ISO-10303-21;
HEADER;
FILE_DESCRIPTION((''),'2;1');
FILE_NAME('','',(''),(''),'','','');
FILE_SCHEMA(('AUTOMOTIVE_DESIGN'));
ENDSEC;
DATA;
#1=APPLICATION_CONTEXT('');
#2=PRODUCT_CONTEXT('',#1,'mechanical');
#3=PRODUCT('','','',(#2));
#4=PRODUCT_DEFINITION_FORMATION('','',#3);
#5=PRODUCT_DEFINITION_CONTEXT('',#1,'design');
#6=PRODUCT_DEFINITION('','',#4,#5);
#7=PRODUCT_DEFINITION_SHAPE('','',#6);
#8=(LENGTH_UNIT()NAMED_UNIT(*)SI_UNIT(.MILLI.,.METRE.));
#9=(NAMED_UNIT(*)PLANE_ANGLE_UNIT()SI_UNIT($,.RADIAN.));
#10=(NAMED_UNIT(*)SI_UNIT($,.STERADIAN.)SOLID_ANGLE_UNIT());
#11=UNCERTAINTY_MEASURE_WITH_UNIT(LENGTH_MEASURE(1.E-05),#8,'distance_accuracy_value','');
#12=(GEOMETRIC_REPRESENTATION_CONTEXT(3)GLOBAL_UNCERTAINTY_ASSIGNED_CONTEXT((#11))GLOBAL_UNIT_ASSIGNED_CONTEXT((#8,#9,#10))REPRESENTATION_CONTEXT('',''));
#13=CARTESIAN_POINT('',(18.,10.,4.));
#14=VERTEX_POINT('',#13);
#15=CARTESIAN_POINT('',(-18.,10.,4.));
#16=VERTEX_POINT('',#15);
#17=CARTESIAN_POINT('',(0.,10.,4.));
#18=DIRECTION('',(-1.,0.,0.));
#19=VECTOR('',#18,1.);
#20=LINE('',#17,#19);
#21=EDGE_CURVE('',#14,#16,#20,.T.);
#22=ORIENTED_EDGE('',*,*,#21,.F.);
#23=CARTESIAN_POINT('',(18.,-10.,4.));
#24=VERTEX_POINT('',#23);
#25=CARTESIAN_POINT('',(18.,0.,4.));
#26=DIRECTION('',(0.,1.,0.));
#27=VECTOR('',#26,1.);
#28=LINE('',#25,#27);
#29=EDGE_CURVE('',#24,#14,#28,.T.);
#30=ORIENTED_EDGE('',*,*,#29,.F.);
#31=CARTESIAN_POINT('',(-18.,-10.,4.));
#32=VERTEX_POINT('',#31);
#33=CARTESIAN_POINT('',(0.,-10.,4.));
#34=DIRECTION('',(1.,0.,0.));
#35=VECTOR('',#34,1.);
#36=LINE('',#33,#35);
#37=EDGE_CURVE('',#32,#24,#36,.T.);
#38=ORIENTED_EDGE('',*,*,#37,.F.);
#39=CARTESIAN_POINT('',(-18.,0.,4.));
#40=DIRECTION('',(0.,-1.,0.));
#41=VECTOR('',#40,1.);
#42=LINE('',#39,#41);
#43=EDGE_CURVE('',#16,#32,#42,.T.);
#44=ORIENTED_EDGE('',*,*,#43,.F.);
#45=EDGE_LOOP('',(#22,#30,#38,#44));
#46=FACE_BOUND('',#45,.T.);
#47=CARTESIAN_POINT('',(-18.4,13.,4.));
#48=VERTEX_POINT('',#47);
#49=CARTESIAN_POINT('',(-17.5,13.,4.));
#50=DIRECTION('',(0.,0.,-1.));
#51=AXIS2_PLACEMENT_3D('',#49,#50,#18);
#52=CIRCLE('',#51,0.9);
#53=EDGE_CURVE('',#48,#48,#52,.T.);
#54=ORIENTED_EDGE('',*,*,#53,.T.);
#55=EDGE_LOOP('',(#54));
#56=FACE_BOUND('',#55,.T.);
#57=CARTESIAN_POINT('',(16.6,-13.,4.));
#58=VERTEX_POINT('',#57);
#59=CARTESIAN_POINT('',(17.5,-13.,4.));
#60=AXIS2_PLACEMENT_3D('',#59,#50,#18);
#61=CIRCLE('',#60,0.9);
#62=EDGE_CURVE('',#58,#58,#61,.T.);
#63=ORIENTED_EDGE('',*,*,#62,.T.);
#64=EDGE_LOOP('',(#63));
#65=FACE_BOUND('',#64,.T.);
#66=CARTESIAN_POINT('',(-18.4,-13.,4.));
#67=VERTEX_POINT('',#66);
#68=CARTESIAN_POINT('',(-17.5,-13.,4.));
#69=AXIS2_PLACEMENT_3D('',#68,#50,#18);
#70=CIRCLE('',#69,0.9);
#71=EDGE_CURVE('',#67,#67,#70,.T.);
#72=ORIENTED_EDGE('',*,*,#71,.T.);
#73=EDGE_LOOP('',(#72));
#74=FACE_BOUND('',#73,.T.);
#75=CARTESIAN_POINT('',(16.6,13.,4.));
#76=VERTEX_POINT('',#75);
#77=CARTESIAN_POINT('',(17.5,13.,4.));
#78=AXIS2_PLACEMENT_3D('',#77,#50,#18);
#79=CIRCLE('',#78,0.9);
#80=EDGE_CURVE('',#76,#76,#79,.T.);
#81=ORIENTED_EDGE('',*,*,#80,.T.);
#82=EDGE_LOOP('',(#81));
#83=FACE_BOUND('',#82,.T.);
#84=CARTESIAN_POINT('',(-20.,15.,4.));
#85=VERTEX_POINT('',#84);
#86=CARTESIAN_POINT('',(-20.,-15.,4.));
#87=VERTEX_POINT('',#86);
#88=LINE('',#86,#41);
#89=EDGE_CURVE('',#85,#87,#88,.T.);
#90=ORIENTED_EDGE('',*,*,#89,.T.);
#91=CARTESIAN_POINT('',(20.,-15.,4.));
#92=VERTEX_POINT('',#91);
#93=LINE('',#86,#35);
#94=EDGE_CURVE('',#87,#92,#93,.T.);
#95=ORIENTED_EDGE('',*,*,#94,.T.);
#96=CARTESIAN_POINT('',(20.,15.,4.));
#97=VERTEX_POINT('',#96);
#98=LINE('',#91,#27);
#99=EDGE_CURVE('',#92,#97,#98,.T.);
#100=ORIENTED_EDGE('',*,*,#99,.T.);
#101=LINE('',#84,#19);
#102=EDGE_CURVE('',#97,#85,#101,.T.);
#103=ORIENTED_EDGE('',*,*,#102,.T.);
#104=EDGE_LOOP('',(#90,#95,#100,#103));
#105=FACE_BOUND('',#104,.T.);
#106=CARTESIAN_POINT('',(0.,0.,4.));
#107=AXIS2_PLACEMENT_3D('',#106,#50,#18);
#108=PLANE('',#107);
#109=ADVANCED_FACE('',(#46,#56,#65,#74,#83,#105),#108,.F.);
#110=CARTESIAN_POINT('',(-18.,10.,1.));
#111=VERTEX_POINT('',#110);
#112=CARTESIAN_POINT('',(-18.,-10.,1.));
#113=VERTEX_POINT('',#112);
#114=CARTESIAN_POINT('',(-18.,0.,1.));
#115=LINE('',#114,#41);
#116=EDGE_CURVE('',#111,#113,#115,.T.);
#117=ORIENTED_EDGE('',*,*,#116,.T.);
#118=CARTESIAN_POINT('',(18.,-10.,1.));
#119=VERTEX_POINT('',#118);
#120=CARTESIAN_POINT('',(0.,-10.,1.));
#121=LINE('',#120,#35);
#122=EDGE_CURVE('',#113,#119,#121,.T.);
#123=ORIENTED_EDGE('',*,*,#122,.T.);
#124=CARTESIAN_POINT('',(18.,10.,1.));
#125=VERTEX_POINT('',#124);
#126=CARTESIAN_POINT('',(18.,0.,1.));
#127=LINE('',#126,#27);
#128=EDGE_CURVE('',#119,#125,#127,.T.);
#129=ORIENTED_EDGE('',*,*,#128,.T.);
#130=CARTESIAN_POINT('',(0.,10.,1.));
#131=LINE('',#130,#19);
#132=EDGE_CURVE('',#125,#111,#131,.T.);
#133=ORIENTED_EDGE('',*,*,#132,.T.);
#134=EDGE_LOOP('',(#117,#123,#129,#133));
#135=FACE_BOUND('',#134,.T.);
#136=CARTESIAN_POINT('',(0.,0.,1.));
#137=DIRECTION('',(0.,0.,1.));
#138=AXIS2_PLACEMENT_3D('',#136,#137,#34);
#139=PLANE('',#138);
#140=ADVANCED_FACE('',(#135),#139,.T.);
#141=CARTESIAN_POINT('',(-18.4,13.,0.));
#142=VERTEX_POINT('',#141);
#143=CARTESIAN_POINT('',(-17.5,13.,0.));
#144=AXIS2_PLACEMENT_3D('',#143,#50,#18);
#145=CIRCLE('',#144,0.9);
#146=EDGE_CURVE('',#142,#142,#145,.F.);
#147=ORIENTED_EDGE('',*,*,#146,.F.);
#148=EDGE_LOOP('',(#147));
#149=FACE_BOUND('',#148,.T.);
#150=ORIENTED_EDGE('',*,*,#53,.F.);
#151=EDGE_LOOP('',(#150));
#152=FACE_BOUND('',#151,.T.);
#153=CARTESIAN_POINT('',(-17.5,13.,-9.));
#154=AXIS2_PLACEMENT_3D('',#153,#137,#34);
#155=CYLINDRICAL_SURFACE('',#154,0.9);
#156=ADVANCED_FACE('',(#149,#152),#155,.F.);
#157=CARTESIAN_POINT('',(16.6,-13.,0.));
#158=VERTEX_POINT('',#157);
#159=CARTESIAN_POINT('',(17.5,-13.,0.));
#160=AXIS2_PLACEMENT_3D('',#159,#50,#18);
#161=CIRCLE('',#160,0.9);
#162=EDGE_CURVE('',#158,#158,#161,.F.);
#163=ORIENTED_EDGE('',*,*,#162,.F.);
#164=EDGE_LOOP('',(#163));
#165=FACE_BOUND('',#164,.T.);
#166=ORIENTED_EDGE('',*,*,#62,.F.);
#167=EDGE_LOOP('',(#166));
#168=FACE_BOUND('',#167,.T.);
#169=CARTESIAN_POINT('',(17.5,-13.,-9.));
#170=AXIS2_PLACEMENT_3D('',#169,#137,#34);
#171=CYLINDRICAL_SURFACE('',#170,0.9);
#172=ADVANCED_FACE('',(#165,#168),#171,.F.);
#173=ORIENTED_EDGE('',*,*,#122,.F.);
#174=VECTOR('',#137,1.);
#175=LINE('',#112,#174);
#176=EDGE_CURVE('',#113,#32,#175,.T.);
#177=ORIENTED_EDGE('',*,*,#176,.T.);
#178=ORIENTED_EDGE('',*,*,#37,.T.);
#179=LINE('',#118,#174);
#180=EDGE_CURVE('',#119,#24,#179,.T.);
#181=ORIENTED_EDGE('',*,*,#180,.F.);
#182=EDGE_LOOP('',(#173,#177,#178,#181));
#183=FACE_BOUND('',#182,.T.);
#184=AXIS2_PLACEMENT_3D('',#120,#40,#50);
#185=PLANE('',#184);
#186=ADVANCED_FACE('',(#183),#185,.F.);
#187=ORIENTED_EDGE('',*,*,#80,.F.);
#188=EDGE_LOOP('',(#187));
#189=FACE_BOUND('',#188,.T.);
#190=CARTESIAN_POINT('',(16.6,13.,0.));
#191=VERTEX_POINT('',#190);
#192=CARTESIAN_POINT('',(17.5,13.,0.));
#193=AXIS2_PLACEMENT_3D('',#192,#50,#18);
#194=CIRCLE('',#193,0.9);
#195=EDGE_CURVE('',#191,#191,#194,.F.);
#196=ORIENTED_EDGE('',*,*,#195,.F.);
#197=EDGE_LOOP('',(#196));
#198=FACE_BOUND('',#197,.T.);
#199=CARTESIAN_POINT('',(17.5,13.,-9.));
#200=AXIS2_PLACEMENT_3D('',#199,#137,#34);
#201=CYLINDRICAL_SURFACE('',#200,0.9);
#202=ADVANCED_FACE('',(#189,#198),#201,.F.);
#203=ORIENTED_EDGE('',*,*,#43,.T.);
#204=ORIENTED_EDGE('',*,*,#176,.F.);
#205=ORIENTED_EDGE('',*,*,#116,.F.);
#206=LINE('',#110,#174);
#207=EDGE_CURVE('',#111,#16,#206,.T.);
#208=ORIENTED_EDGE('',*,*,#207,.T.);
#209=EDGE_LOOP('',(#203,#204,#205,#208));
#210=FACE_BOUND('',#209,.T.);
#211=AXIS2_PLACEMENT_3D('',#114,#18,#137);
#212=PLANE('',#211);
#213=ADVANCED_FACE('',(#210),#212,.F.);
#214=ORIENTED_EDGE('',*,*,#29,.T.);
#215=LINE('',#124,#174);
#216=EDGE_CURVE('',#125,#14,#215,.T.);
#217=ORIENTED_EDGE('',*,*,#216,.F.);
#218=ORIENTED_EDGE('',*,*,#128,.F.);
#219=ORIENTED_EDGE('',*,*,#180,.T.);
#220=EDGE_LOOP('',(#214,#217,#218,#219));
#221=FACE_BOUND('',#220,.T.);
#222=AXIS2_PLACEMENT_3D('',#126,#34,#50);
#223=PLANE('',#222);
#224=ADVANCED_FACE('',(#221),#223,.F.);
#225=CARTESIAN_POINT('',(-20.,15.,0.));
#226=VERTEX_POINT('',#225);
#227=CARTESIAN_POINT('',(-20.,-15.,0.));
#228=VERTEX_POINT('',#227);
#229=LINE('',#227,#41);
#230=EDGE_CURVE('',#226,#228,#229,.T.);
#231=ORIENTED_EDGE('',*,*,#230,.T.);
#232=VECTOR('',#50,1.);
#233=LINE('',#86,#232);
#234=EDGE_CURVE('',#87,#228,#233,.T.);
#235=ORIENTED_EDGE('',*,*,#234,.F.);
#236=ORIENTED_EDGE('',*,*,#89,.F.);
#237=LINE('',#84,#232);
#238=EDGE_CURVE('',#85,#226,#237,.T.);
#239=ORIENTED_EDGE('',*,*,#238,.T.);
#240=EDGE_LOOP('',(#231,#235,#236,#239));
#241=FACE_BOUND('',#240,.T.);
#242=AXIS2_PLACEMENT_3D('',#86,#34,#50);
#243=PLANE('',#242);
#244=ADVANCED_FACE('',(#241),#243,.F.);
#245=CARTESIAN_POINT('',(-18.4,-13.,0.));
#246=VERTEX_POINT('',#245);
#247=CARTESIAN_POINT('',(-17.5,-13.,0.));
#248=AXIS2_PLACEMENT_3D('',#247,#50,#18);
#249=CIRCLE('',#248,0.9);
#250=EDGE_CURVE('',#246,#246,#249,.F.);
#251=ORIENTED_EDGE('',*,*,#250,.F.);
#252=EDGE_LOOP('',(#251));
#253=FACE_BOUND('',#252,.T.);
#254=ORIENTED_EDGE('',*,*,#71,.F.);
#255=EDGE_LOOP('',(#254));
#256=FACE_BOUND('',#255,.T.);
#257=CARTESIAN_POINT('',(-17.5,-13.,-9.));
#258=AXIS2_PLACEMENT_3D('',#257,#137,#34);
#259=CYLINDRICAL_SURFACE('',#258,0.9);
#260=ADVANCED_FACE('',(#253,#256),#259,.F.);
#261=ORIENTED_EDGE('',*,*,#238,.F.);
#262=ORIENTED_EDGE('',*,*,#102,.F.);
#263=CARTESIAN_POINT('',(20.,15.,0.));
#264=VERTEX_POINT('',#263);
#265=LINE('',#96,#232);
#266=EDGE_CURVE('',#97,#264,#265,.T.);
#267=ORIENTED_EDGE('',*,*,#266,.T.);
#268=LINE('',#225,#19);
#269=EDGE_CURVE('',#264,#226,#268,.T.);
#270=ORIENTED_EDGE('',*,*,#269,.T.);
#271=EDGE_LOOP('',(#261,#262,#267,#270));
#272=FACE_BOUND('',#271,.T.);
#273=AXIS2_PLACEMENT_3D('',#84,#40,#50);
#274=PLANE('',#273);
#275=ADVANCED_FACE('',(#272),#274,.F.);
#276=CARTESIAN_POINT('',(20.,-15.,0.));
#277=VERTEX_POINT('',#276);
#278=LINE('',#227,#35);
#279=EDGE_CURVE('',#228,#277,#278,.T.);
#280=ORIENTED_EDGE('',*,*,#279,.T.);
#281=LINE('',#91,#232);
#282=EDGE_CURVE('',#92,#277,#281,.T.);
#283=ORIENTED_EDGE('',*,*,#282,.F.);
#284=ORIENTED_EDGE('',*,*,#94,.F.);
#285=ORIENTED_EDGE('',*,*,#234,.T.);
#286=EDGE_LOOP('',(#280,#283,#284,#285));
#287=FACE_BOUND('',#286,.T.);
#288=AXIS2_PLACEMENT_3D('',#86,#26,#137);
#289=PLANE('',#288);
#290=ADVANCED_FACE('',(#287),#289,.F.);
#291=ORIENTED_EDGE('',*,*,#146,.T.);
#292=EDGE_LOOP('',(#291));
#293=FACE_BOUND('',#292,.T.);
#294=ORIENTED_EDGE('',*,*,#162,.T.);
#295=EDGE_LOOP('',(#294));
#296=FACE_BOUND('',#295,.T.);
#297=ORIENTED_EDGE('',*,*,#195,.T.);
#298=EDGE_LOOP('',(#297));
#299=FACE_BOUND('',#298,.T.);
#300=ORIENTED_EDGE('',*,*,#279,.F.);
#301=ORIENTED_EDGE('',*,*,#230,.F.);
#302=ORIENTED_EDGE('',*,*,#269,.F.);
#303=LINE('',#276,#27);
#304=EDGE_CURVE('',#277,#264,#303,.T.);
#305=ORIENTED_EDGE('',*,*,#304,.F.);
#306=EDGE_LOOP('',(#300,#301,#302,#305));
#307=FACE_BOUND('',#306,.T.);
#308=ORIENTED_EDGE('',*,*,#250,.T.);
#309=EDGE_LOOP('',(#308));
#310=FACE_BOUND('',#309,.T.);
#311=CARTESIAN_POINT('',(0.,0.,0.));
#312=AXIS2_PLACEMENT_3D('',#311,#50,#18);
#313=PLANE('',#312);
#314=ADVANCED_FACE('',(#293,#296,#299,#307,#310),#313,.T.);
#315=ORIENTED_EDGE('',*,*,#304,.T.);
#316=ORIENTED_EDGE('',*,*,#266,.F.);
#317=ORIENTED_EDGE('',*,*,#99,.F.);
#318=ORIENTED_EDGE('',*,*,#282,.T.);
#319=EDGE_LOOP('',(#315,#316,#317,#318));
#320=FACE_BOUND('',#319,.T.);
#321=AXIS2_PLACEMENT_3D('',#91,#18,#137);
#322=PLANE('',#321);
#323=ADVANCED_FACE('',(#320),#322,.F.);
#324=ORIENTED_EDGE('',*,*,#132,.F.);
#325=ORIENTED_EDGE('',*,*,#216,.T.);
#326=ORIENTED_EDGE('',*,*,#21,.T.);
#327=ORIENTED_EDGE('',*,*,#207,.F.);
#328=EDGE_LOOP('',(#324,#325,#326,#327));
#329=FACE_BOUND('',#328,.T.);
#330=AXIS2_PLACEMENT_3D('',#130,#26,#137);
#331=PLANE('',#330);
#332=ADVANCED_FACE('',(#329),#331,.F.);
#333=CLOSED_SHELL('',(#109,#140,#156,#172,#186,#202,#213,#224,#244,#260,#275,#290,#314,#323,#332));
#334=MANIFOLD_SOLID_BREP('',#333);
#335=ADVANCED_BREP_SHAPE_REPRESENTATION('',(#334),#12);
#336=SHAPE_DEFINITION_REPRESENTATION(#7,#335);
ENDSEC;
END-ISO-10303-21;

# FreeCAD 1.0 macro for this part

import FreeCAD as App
import Part
import Sketcher
Q = App.Units.Quantity


def add_polygon(sketch, points):
    """Adds a closed chain of lines whose ends are joined by coincident constraints."""
    first, n = sketch.GeometryCount, len(points)
    for a, b in zip(points, points[1:] + points[:1]):
        sketch.addGeometry(Part.LineSegment(App.Vector(*a, 0), App.Vector(*b, 0)), False)
    for i in range(n):
        sketch.addConstraint(Sketcher.Constraint("Coincident", first + i, 2, first + (i + 1) % n, 1))

doc = App.newDocument("Part")
body = doc.addObject("PartDesign::Body", "Body")

sketch1 = body.newObject("Sketcher::SketchObject", "Sketch")
sketch1.AttachmentSupport = (doc.getObject("XY_Plane"), [""])
sketch1.MapMode = "FlatFace"
add_polygon(sketch1, [(-20, 15), (-20, -15), (20, -15), (20, 15)])
sketch1.addConstraint([
    Sketcher.Constraint("Vertical", 0),
    Sketcher.Constraint("Horizontal", 1),
    Sketcher.Constraint("Vertical", 2),
    Sketcher.Constraint("Horizontal", 3),
    Sketcher.Constraint("Symmetric", 0, 2, 2, 2, -1, 1),
    Sketcher.Constraint("DistanceX", 1, 1, 1, 2, Q("40 mm")),
    Sketcher.Constraint("DistanceY", 0, 2, 0, 1, Q("30 mm")),
])
pad1 = body.newObject("PartDesign::Pad", "Pad")
pad1.Profile = sketch1
pad1.Length = 4

sketch2 = body.newObject("Sketcher::SketchObject", "Sketch001")
sketch2.AttachmentSupport = (doc.getObject("XY_Plane"), [""])
sketch2.MapMode = "FlatFace"
sketch2.AttachmentOffset = App.Placement(App.Vector(0, 0, 4), App.Rotation())
add_polygon(sketch2, [(-18, 10), (-18, -10), (18, -10), (18, 10)])
sketch2.addConstraint([
    Sketcher.Constraint("Vertical", 0),
    Sketcher.Constraint("Horizontal", 1),
    Sketcher.Constraint("Vertical", 2),
    Sketcher.Constraint("Horizontal", 3),
    Sketcher.Constraint("Symmetric", 0, 2, 2, 2, -1, 1),
    Sketcher.Constraint("DistanceX", 1, 1, 1, 2, Q("36 mm")),
    Sketcher.Constraint("DistanceY", 0, 2, 0, 1, Q("20 mm")),
])
pocket1 = body.newObject("PartDesign::Pocket", "Pocket")
pocket1.Profile = sketch2
pocket1.Length = 3

sketch3 = body.newObject("Sketcher::SketchObject", "Sketch002")
sketch3.AttachmentSupport = (doc.getObject("XY_Plane"), [""])
sketch3.MapMode = "FlatFace"
sketch3.AttachmentOffset = App.Placement(App.Vector(0, 0, 4), App.Rotation())
sketch3.addGeometry([
    Part.Circle(App.Vector(-17.5, 13, 0), App.Vector(0, 0, 1), 0.9),
    Part.Circle(App.Vector(-17.5, -13, 0), App.Vector(0, 0, 1), 0.9),
    Part.Circle(App.Vector(17.5, -13, 0), App.Vector(0, 0, 1), 0.9),
    Part.Circle(App.Vector(17.5, 13, 0), App.Vector(0, 0, 1), 0.9),
], False)
sketch3.addConstraint([
    Sketcher.Constraint("Equal", 0, 1),
    Sketcher.Constraint("Equal", 1, 2),
    Sketcher.Constraint("Equal", 2, 3),
    Sketcher.Constraint("Symmetric", 0, 3, 2, 3, -1, 1),
    Sketcher.Constraint("Symmetric", 1, 3, 3, 3, -1, 1),
    Sketcher.Constraint("Symmetric", 1, 3, 2, 3, -2),
    Sketcher.Constraint("Diameter", 0, Q("1.8 mm")),
    Sketcher.Constraint("DistanceY", -1, 1, 0, 3, Q("13 mm")),
    Sketcher.Constraint("DistanceX", 1, 3, 2, 3, Q("35 mm")),
])
pocket2 = body.newObject("PartDesign::Pocket", "Pocket001")
pocket2.Profile = sketch3
pocket2.Length = 13

doc.recompute()
